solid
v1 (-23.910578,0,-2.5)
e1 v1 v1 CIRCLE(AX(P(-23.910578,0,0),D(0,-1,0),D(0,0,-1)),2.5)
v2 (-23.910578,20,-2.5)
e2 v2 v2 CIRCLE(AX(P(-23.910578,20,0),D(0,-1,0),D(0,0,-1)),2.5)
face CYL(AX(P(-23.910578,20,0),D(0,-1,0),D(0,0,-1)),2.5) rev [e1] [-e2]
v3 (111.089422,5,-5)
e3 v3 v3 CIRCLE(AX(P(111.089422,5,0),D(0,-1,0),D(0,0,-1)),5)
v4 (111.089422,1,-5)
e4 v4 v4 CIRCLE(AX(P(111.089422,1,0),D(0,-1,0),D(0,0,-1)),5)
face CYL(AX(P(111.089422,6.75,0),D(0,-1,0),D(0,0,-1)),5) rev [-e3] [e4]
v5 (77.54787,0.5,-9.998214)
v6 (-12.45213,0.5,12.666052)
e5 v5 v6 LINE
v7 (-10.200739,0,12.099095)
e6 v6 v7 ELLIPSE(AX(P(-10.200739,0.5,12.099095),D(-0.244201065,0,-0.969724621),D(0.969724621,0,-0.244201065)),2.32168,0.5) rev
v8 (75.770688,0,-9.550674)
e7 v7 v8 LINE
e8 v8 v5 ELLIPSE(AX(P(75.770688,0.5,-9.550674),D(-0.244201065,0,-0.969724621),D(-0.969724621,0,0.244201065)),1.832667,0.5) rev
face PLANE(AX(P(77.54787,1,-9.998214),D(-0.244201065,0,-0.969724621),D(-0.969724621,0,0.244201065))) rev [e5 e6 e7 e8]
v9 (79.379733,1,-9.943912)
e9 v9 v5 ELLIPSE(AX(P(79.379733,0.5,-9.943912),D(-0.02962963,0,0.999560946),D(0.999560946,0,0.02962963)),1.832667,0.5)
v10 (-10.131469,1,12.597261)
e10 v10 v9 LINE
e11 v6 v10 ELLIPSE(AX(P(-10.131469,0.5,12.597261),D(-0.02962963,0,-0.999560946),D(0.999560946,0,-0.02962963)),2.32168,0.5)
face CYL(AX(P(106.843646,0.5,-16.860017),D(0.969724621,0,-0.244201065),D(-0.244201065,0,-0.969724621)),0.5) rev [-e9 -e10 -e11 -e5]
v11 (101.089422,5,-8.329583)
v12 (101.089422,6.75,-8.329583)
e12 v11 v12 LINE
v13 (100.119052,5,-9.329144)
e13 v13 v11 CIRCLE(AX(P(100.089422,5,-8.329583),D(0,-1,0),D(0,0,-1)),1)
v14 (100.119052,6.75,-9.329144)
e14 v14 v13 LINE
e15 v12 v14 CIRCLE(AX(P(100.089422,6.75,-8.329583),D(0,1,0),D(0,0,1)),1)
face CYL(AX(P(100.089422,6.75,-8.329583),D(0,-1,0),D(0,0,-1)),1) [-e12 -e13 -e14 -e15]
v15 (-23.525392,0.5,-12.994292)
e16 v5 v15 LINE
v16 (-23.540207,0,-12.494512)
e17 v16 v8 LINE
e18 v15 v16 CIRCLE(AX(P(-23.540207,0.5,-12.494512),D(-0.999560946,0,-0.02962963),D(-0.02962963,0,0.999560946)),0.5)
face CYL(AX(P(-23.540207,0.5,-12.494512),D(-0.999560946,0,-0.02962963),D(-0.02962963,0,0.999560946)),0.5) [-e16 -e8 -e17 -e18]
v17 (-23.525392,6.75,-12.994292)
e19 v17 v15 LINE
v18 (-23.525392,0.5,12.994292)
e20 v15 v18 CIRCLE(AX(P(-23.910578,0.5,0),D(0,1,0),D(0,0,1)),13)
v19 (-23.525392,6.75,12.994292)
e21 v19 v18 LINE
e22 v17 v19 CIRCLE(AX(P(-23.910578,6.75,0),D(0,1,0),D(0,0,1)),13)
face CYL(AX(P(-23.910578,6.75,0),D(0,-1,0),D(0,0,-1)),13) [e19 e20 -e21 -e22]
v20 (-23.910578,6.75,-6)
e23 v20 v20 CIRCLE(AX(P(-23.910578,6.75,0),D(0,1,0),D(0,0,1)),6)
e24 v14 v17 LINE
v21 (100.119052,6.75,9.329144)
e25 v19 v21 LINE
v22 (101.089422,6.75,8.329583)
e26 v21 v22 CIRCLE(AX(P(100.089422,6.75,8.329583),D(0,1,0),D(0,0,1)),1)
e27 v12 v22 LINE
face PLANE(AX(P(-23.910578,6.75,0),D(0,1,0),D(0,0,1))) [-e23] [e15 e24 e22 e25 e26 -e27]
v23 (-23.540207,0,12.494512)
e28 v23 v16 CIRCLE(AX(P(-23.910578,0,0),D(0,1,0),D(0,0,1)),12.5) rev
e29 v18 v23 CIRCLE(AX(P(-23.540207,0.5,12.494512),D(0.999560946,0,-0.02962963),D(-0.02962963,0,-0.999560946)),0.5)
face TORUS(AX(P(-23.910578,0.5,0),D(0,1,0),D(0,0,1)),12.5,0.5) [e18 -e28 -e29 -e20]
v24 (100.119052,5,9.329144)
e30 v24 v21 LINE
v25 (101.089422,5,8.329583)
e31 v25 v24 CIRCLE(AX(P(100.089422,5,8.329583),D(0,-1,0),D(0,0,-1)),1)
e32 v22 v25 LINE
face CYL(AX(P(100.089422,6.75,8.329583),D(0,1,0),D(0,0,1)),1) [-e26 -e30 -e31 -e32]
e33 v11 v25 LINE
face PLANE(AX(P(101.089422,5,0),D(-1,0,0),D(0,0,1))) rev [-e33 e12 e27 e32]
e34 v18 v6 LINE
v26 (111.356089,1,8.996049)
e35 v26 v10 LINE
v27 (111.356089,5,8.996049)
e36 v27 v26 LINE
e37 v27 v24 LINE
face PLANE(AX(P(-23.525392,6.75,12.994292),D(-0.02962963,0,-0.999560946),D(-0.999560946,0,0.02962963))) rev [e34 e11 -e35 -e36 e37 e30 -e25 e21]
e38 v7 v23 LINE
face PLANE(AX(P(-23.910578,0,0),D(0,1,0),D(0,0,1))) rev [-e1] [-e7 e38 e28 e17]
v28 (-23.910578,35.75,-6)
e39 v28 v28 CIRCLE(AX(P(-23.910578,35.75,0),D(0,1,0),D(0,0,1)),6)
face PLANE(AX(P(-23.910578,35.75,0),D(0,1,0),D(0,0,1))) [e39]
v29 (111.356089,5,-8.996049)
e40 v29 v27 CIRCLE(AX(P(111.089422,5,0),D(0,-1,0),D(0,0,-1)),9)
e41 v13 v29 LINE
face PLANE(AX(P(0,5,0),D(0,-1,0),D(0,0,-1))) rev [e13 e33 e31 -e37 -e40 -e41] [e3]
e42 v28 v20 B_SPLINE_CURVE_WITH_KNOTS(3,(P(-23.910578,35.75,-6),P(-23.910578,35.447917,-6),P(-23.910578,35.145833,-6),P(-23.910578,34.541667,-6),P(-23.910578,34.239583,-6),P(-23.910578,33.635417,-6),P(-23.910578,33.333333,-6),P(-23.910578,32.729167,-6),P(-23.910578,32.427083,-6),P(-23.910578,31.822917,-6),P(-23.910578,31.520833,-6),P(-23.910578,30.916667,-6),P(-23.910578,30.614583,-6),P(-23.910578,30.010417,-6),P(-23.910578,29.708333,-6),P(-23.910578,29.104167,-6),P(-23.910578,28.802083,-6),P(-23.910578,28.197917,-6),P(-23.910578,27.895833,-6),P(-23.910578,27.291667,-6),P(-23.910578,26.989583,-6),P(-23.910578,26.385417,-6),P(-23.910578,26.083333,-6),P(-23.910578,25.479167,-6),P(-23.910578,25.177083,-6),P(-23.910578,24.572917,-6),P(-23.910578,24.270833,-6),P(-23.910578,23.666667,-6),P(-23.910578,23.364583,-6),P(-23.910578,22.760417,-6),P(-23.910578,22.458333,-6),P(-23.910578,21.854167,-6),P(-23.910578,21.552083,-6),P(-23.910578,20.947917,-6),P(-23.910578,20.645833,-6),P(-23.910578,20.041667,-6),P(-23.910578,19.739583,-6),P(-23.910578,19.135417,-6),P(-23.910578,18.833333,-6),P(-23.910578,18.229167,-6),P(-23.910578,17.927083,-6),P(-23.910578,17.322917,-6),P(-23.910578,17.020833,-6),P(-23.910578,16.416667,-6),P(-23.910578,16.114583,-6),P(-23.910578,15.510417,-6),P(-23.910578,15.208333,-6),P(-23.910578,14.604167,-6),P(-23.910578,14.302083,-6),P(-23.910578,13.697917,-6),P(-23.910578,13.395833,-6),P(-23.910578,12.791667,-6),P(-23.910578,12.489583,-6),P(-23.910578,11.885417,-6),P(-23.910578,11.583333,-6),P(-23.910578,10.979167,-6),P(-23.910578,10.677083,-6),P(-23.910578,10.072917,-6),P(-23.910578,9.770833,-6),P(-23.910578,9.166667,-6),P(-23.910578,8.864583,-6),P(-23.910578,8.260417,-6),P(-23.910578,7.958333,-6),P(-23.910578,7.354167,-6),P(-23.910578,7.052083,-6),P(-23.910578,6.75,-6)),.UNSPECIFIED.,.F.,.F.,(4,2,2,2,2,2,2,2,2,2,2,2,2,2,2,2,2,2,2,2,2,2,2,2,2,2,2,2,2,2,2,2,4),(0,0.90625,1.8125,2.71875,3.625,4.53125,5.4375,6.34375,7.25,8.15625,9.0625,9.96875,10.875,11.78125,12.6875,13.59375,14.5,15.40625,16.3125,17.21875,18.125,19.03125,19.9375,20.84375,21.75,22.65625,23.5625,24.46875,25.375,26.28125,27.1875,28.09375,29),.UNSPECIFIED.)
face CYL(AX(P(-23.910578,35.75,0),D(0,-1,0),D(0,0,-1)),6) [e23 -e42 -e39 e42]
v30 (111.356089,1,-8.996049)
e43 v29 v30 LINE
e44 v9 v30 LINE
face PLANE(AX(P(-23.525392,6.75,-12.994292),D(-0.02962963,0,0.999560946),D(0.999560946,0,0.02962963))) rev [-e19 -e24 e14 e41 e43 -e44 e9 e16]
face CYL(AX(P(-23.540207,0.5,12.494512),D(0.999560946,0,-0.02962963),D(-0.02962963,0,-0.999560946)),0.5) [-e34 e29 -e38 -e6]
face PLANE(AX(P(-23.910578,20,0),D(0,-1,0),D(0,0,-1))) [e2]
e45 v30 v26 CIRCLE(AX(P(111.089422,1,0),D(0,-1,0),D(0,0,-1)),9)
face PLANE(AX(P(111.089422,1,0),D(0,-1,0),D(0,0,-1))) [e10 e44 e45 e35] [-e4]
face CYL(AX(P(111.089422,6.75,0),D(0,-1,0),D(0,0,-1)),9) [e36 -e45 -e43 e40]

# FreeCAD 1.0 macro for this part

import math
import FreeCAD as App
import Part
import Sketcher

V = App.Vector


def edges_at(feature, points):
    """Names of the edges that pass closest to the given points."""
    edges = feature.Shape.Edges
    near = lambda p: min(range(len(edges)), key=lambda i: edges[i].distToShape(Part.Vertex(*p))[0])
    return sorted({f"Edge{near(p) + 1}" for p in points})

doc = App.newDocument("Part")
body = doc.addObject("PartDesign::Body", "Body")

# Sketch on XZ plane
sketch1 = body.newObject("Sketcher::SketchObject", "Sketch")
sketch1.AttachmentSupport = (doc.getObject("XZ_Plane"), [""])
sketch1.MapMode = "FlatFace"
sketch1.addGeometry(Part.LineSegment(V(111, -9, 0), V(-24, -13, 0)), False)
sketch1.addGeometry(Part.ArcOfCircle(Part.Circle(V(-24, 0, 0), V(0, 0, 1), 13), math.radians(88), math.radians(272)), False)
sketch1.addGeometry(Part.LineSegment(V(-24, 13, 0), V(111, 9, 0)), False)
sketch1.addGeometry(Part.ArcOfCircle(Part.Circle(V(111, 0, 0), V(0, 0, 1), 9), math.radians(-88), math.radians(88)), False)
sketch1.addGeometry(Part.Circle(V(111, 0, 0), V(0, 0, 1), 5), False)
sketch1.addConstraint(Sketcher.Constraint("Tangent", 0, 2, 1, 2))
sketch1.addConstraint(Sketcher.Constraint("Tangent", 1, 1, 2, 1))
sketch1.addConstraint(Sketcher.Constraint("Tangent", 2, 2, 3, 2))
sketch1.addConstraint(Sketcher.Constraint("Tangent", 3, 1, 0, 1))
sketch1.addConstraint(Sketcher.Constraint("Coincident", 4, 3, 3, 3))
sketch1.addConstraint(Sketcher.Constraint("Symmetric", 0, 2, 1, 1, -1))
sketch1.addConstraint(Sketcher.Constraint("Diameter", 4, 10.0))
sketch1.addConstraint(Sketcher.Constraint("Radius", 1, 13.0))
sketch1.addConstraint(Sketcher.Constraint("Radius", 3, 9.0))
sketch1.addConstraint(Sketcher.Constraint("DistanceX", 1, 3, 3, 3, 135.0))
sketch1.addConstraint(Sketcher.Constraint("DistanceX", -1, 1, 2, 2, 111.356089))
pad1 = body.newObject("PartDesign::Pad", "Pad")
pad1.Profile = sketch1
pad1.Length = 6.75
pad1.Reversed = True

# Sketch on XZ plane
sketch2 = body.newObject("Sketcher::SketchObject", "Sketch001")
sketch2.AttachmentSupport = (doc.getObject("XZ_Plane"), [""])
sketch2.MapMode = "FlatFace"
sketch2.AttachmentOffset = App.Placement(V(0, 0, -6.75), App.Rotation())
sketch2.addGeometry(Part.LineSegment(V(101, -16, 0), V(101, 16, 0)), False)
sketch2.addGeometry(Part.LineSegment(V(101, 16, 0), V(124, 16, 0)), False)
sketch2.addGeometry(Part.LineSegment(V(124, 16, 0), V(124, -16, 0)), False)
sketch2.addGeometry(Part.LineSegment(V(124, -16, 0), V(101, -16, 0)), False)
sketch2.addConstraint(Sketcher.Constraint("Coincident", 0, 2, 1, 1))
sketch2.addConstraint(Sketcher.Constraint("Coincident", 1, 2, 2, 1))
sketch2.addConstraint(Sketcher.Constraint("Coincident", 2, 2, 3, 1))
sketch2.addConstraint(Sketcher.Constraint("Coincident", 3, 2, 0, 1))
sketch2.addConstraint(Sketcher.Constraint("Vertical", 0))
sketch2.addConstraint(Sketcher.Constraint("Horizontal", 1))
sketch2.addConstraint(Sketcher.Constraint("Vertical", 2))
sketch2.addConstraint(Sketcher.Constraint("Horizontal", 3))
sketch2.addConstraint(Sketcher.Constraint("DistanceX", 1, 1, 1, 2, 22.606759))
sketch2.addConstraint(Sketcher.Constraint("DistanceY", 0, 1, 0, 2, 31.619912))
sketch2.addConstraint(Sketcher.Constraint("DistanceY", -1, 1, 0, 2, 15.662199))
sketch2.addConstraint(Sketcher.Constraint("DistanceX", -1, 1, 1, 2, 123.696182))
pocket1 = body.newObject("PartDesign::Pocket", "Pocket")
pocket1.Profile = sketch2
pocket1.Length = 1.75
pocket1.Reversed = True
doc.recompute()

fillet = body.newObject("PartDesign::Fillet", "Fillet")
fillet.Base = (pocket1, edges_at(pocket1, [(101.089, 5.875, -9.3), (101.089, 5.875, 9.3)]))
fillet.Radius = 1

# Sketch on XZ plane
sketch3 = body.newObject("Sketcher::SketchObject", "Sketch002")
sketch3.AttachmentSupport = (doc.getObject("XZ_Plane"), [""])
sketch3.MapMode = "FlatFace"
sketch3.addGeometry(Part.LineSegment(V(78, 10, 0), V(-12, 13, 0)), False)
sketch3.addGeometry(Part.LineSegment(V(-12, 13, 0), V(78, -10, 0)), False)
sketch3.addGeometry(Part.ArcOfCircle(Part.Circle(V(111, 0, 0), V(0, 0, 1), 35), math.radians(-163), math.radians(163)), False)
sketch3.addConstraint(Sketcher.Constraint("Coincident", 0, 2, 1, 1))
sketch3.addConstraint(Sketcher.Constraint("Coincident", 1, 2, 2, 1))
sketch3.addConstraint(Sketcher.Constraint("Coincident", 2, 2, 0, 1))
sketch3.addConstraint(Sketcher.Constraint("Symmetric", 1, 2, 2, 2, -1))
sketch3.addConstraint(Sketcher.Constraint("Radius", 2, 35.0))
sketch3.addConstraint(Sketcher.Constraint("DistanceX", 0, 2, 1, 2, 90.0))
sketch3.addConstraint(Sketcher.Constraint("DistanceX", 0, 2, -1, 1, 12.45213))
sketch3.addConstraint(Sketcher.Constraint("DistanceY", -1, 1, 0, 2, 12.666052))
sketch3.addConstraint(Sketcher.Constraint("Distance", 0, 90.039532))
pocket2 = body.newObject("PartDesign::Pocket", "Pocket001")
pocket2.Profile = sketch3
pocket2.Length = 1
doc.recompute()

fillet2 = body.newObject("PartDesign::Fillet", "Fillet001")
fillet2.Base = (pocket2, edges_at(pocket2, [(32.548, 1, 1.334)]))
fillet2.Radius = 0.5
doc.recompute()

fillet3 = body.newObject("PartDesign::Fillet", "Fillet002")
fillet3.Base = (fillet2, edges_at(fillet2, [(-17.989, 0, 12.83), (-36.911, 0, 0), (27.011, 0, -11.496)]))
fillet3.Radius = 0.5

# Sketch on XZ plane
sketch4 = body.newObject("Sketcher::SketchObject", "Sketch003")
sketch4.AttachmentSupport = (doc.getObject("XZ_Plane"), [""])
sketch4.MapMode = "FlatFace"
sketch4.AttachmentOffset = App.Placement(V(0, 0, -6.75), App.Rotation())
sketch4.addGeometry(Part.Circle(V(-24, 0, 0), V(0, 0, 1), 6), False)
sketch4.addConstraint(Sketcher.Constraint("PointOnObject", 0, 3, -1))
sketch4.addConstraint(Sketcher.Constraint("Diameter", 0, 12.0))
sketch4.addConstraint(Sketcher.Constraint("DistanceX", 0, 3, -1, 1, 23.910578))
pad2 = body.newObject("PartDesign::Pad", "Pad001")
pad2.Profile = sketch4
pad2.Length = 29
pad2.Reversed = True

# Sketch on XZ plane
sketch5 = body.newObject("Sketcher::SketchObject", "Sketch004")
sketch5.AttachmentSupport = (doc.getObject("XZ_Plane"), [""])
sketch5.MapMode = "FlatFace"
sketch5.addGeometry(Part.Circle(V(-23.9, 0, 0), V(0, 0, 1), 2.5), False)
sketch5.addConstraint(Sketcher.Constraint("PointOnObject", 0, 3, -1))
sketch5.addConstraint(Sketcher.Constraint("Diameter", 0, 5.0))
sketch5.addConstraint(Sketcher.Constraint("DistanceX", 0, 3, -1, 1, 23.910578))
pocket3 = body.newObject("PartDesign::Pocket", "Pocket002")
pocket3.Profile = sketch5
pocket3.Length = 20

doc.recompute()
